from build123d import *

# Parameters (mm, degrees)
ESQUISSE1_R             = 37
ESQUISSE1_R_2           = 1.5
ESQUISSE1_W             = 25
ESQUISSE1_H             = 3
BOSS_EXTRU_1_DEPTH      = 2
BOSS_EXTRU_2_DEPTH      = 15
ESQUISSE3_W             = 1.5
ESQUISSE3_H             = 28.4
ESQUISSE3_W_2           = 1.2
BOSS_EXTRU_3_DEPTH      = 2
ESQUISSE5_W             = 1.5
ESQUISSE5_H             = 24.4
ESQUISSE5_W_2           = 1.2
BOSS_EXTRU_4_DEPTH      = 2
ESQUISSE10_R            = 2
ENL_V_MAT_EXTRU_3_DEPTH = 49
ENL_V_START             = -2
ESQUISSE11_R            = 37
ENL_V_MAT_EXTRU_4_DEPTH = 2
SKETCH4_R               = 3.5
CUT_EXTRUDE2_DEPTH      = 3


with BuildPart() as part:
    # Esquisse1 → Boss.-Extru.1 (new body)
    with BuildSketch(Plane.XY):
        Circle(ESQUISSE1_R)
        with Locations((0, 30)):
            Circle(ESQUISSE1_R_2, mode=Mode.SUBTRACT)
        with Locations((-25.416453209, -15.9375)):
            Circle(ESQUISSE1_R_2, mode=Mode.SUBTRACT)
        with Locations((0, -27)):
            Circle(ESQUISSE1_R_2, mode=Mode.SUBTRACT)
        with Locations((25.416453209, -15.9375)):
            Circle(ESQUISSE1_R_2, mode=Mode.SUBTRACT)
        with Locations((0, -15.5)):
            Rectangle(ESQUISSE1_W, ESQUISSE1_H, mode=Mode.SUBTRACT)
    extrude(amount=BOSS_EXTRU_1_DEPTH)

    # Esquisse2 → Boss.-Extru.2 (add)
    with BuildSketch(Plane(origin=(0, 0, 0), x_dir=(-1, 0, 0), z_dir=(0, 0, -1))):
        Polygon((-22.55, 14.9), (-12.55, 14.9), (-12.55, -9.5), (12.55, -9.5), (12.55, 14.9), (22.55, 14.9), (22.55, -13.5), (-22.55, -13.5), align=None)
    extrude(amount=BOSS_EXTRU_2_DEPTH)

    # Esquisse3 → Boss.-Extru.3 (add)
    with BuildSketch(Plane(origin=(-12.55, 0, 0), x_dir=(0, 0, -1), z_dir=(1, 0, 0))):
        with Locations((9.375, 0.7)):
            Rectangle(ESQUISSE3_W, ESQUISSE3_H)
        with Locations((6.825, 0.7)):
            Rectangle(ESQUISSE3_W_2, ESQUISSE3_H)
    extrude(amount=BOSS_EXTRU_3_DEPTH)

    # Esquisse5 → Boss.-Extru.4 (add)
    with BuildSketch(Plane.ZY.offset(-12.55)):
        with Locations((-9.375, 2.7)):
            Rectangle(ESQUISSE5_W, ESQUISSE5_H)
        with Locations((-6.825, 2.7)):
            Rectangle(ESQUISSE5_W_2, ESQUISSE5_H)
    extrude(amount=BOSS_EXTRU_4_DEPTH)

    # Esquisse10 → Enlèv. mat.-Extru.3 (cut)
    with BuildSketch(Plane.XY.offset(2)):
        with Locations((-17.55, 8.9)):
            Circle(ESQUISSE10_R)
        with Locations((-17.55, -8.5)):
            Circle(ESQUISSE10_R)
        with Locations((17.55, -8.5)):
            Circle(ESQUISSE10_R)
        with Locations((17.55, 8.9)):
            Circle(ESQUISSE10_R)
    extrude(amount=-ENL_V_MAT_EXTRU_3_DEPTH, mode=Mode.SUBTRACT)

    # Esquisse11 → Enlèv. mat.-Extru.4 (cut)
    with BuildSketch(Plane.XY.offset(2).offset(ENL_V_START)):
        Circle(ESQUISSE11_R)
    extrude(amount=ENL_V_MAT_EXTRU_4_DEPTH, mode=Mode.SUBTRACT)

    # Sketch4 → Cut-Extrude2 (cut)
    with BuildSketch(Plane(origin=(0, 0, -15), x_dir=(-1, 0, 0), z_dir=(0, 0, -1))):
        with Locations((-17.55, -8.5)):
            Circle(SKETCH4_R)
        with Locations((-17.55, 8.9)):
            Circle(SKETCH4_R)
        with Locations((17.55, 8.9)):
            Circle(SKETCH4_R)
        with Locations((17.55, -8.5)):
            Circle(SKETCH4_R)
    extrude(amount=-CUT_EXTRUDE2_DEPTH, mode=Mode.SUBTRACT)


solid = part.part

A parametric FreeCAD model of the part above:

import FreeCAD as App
import Part
import Sketcher
from FreeCAD import Vector
Q = App.Units.Quantity

doc = App.newDocument("Part")
params = doc.addObject("Spreadsheet::Sheet", "Params")
for row, (alias, value) in enumerate([
    ("sketch1_diameter", "74 mm"),
    ("sketch1_diameter2", "3 mm"),
    ("sketch1_width", "25 mm"),
    ("sketch1_height", "3 mm"),
    ("pad1_length", "2 mm"),
    ("sketch2_width", "10 mm"),
    ("sketch2_width2", "45.1 mm"),
    ("sketch2_height", "28.4 mm"),
    ("sketch2_height2", "24.4 mm"),
    ("pad2_length", "15 mm"),
    ("sketch3_width", "28.4 mm"),
    ("sketch3_height", "1.5 mm"),
    ("sketch3_height2", "1.2 mm"),
    ("pad3_length", "2 mm"),
    ("sketch4_width", "24.4 mm"),
    ("sketch4_height", "1.5 mm"),
    ("sketch4_height2", "1.2 mm"),
    ("pad4_length", "2 mm"),
    ("sketch5_diameter", "4 mm"),
    ("pocket1_length", "49 mm"),
    ("sketch6_diameter", "74 mm"),
    ("pocket2_length", "2 mm"),
    ("sketch7_diameter", "7 mm"),
    ("pocket3_length", "3 mm"),
], start=1):
    params.set(f"A{row}", alias)
    params.set(f"B{row}", "=" + value)
    params.setAlias(f"B{row}", alias)

body = doc.addObject("PartDesign::Body", "Body")

sketch1 = body.newObject("Sketcher::SketchObject", "Sketch")
sketch1.AttachmentSupport = (doc.getObject("XY_Plane"), [""])
sketch1.MapMode = "FlatFace"
sketch1.addGeometry(Part.Circle(Vector(0, 0, 0), Vector(0, 0, 1), 37), False)
sketch1.addGeometry(Part.Circle(Vector(-25.4, -15.9, 0), Vector(0, 0, 1), 1.5), False)
sketch1.addGeometry(Part.LineSegment(Vector(12.5, -17, 0), Vector(-12.5, -17, 0)), False)
sketch1.addGeometry(Part.LineSegment(Vector(-12.5, -17, 0), Vector(-12.5, -14, 0)), False)
sketch1.addGeometry(Part.LineSegment(Vector(-12.5, -14, 0), Vector(12.5, -14, 0)), False)
sketch1.addGeometry(Part.LineSegment(Vector(12.5, -14, 0), Vector(12.5, -17, 0)), False)
sketch1.addGeometry(Part.Circle(Vector(0, -27, 0), Vector(0, 0, 1), 1.5), False)
sketch1.addGeometry(Part.Circle(Vector(25.4, -15.9, 0), Vector(0, 0, 1), 1.5), False)
sketch1.addGeometry(Part.Circle(Vector(0, 30, 0), Vector(0, 0, 1), 1.5), False)
sketch1.addConstraint(Sketcher.Constraint("Coincident", 2, 2, 3, 1))
sketch1.addConstraint(Sketcher.Constraint("Coincident", 3, 2, 4, 1))
sketch1.addConstraint(Sketcher.Constraint("Coincident", 4, 2, 5, 1))
sketch1.addConstraint(Sketcher.Constraint("Coincident", 5, 2, 2, 1))
sketch1.addConstraint(Sketcher.Constraint("Horizontal", 2))
sketch1.addConstraint(Sketcher.Constraint("Vertical", 3))
sketch1.addConstraint(Sketcher.Constraint("Horizontal", 4))
sketch1.addConstraint(Sketcher.Constraint("Vertical", 5))
sketch1.addConstraint(Sketcher.Constraint("Coincident", 0, 3, -1, 1))
sketch1.addConstraint(Sketcher.Constraint("Equal", 1, 6))
sketch1.addConstraint(Sketcher.Constraint("Equal", 6, 7))
sketch1.addConstraint(Sketcher.Constraint("Equal", 7, 8))
sketch1.addConstraint(Sketcher.Constraint("Symmetric", 1, 3, 7, 3, -2))
sketch1.addConstraint(Sketcher.Constraint("PointOnObject", 6, 3, -2))
sketch1.addConstraint(Sketcher.Constraint("PointOnObject", 8, 3, -2))
sketch1.addConstraint(Sketcher.Constraint("Diameter", 0, Q("74 mm")))
sketch1.addConstraint(Sketcher.Constraint("Diameter", 1, Q("3 mm")))
sketch1.addConstraint(Sketcher.Constraint("DistanceX", 2, 2, 2, 1, Q("25 mm")))
sketch1.addConstraint(Sketcher.Constraint("DistanceY", 3, 1, 3, 2, Q("3 mm")))
sketch1.addConstraint(Sketcher.Constraint("DistanceY", 6, 3, -1, 1, Q("27 mm")))
sketch1.addConstraint(Sketcher.Constraint("DistanceY", -1, 1, 8, 3, Q("30 mm")))
sketch1.addConstraint(Sketcher.Constraint("DistanceY", 2, 2, -1, 1, Q("17 mm")))
sketch1.addConstraint(Sketcher.Constraint("DistanceX", 2, 2, -1, 1, Q("12.5 mm")))
sketch1.addConstraint(Sketcher.Constraint("DistanceY", 1, 3, -1, 1, Q("15.9375 mm")))
sketch1.addConstraint(Sketcher.Constraint("DistanceX", 1, 3, -1, 1, Q("25.416453 mm")))
sketch1.setExpression("Constraints[15]", "Params.sketch1_diameter")
sketch1.setExpression("Constraints[16]", "Params.sketch1_diameter2")
sketch1.setExpression("Constraints[17]", "Params.sketch1_width")
sketch1.setExpression("Constraints[18]", "Params.sketch1_height")
pad1 = body.newObject("PartDesign::Pad", "Pad")
pad1.Profile = sketch1
pad1.setExpression("Length", "Params.pad1_length")

sketch2 = body.newObject("Sketcher::SketchObject", "Sketch001")
sketch2.AttachmentSupport = (doc.getObject("XY_Plane"), [""])
sketch2.MapMode = "FlatFace"
sketch2.addGeometry(Part.LineSegment(Vector(13, 15, 0), Vector(23, 15, 0)), False)
sketch2.addGeometry(Part.LineSegment(Vector(23, 15, 0), Vector(23, -14, 0)), False)
sketch2.addGeometry(Part.LineSegment(Vector(23, -14, 0), Vector(-23, -14, 0)), False)
sketch2.addGeometry(Part.LineSegment(Vector(-23, -14, 0), Vector(-23, 15, 0)), False)
sketch2.addGeometry(Part.LineSegment(Vector(-23, 15, 0), Vector(-13, 15, 0)), False)
sketch2.addGeometry(Part.LineSegment(Vector(-13, 15, 0), Vector(-13, -10, 0)), False)
sketch2.addGeometry(Part.LineSegment(Vector(-13, -10, 0), Vector(13, -10, 0)), False)
sketch2.addGeometry(Part.LineSegment(Vector(13, -10, 0), Vector(13, 15, 0)), False)
sketch2.addConstraint(Sketcher.Constraint("Coincident", 0, 2, 1, 1))
sketch2.addConstraint(Sketcher.Constraint("Coincident", 1, 2, 2, 1))
sketch2.addConstraint(Sketcher.Constraint("Coincident", 2, 2, 3, 1))
sketch2.addConstraint(Sketcher.Constraint("Coincident", 3, 2, 4, 1))
sketch2.addConstraint(Sketcher.Constraint("Coincident", 4, 2, 5, 1))
sketch2.addConstraint(Sketcher.Constraint("Coincident", 5, 2, 6, 1))
sketch2.addConstraint(Sketcher.Constraint("Coincident", 6, 2, 7, 1))
sketch2.addConstraint(Sketcher.Constraint("Coincident", 7, 2, 0, 1))
sketch2.addConstraint(Sketcher.Constraint("Horizontal", 0))
sketch2.addConstraint(Sketcher.Constraint("Vertical", 1))
sketch2.addConstraint(Sketcher.Constraint("Horizontal", 2))
sketch2.addConstraint(Sketcher.Constraint("Vertical", 3))
sketch2.addConstraint(Sketcher.Constraint("Horizontal", 4))
sketch2.addConstraint(Sketcher.Constraint("Vertical", 5))
sketch2.addConstraint(Sketcher.Constraint("Horizontal", 6))
sketch2.addConstraint(Sketcher.Constraint("Vertical", 7))
sketch2.addConstraint(Sketcher.Constraint("Symmetric", 0, 2, 3, 2, -2))
sketch2.addConstraint(Sketcher.Constraint("Equal", 0, 4))
sketch2.addConstraint(Sketcher.Constraint("DistanceX", 0, 1, 0, 2, Q("10 mm")))
sketch2.addConstraint(Sketcher.Constraint("DistanceX", 2, 2, 2, 1, Q("45.1 mm")))
sketch2.addConstraint(Sketcher.Constraint("DistanceY", 1, 2, 1, 1, Q("28.4 mm")))
sketch2.addConstraint(Sketcher.Constraint("DistanceY", 5, 2, 5, 1, Q("24.4 mm")))
sketch2.addConstraint(Sketcher.Constraint("DistanceY", -1, 1, 0, 2, Q("14.9 mm")))
sketch2.setExpression("Constraints[18]", "Params.sketch2_width")
sketch2.setExpression("Constraints[19]", "Params.sketch2_width2")
sketch2.setExpression("Constraints[20]", "Params.sketch2_height")
sketch2.setExpression("Constraints[21]", "Params.sketch2_height2")
pad2 = body.newObject("PartDesign::Pad", "Pad001")
pad2.Profile = sketch2
pad2.setExpression("Length", "Params.pad2_length")
pad2.Reversed = True

sketch3 = body.newObject("Sketcher::SketchObject", "Sketch002")
sketch3.AttachmentSupport = (doc.getObject("YZ_Plane"), [""])
sketch3.MapMode = "FlatFace"
sketch3.AttachmentOffset = App.Placement(Vector(0, 0, -12.55), App.Rotation())
sketch3.addGeometry(Part.LineSegment(Vector(14.9, -8.6, 0), Vector(-13.5, -8.6, 0)), False)
sketch3.addGeometry(Part.LineSegment(Vector(-13.5, -8.6, 0), Vector(-13.5, -10.1, 0)), False)
sketch3.addGeometry(Part.LineSegment(Vector(-13.5, -10.1, 0), Vector(14.9, -10.1, 0)), False)
sketch3.addGeometry(Part.LineSegment(Vector(14.9, -10.1, 0), Vector(14.9, -8.6, 0)), False)
sketch3.addGeometry(Part.LineSegment(Vector(14.9, -6.2, 0), Vector(-13.5, -6.2, 0)), False)
sketch3.addGeometry(Part.LineSegment(Vector(-13.5, -6.2, 0), Vector(-13.5, -7.4, 0)), False)
sketch3.addGeometry(Part.LineSegment(Vector(-13.5, -7.4, 0), Vector(14.9, -7.4, 0)), False)
sketch3.addGeometry(Part.LineSegment(Vector(14.9, -7.4, 0), Vector(14.9, -6.2, 0)), False)
sketch3.addConstraint(Sketcher.Constraint("Coincident", 0, 2, 1, 1))
sketch3.addConstraint(Sketcher.Constraint("Coincident", 1, 2, 2, 1))
sketch3.addConstraint(Sketcher.Constraint("Coincident", 2, 2, 3, 1))
sketch3.addConstraint(Sketcher.Constraint("Coincident", 3, 2, 0, 1))
sketch3.addConstraint(Sketcher.Constraint("Coincident", 4, 2, 5, 1))
sketch3.addConstraint(Sketcher.Constraint("Coincident", 5, 2, 6, 1))
sketch3.addConstraint(Sketcher.Constraint("Coincident", 6, 2, 7, 1))
sketch3.addConstraint(Sketcher.Constraint("Coincident", 7, 2, 4, 1))
sketch3.addConstraint(Sketcher.Constraint("Horizontal", 0))
sketch3.addConstraint(Sketcher.Constraint("Vertical", 1))
sketch3.addConstraint(Sketcher.Constraint("Horizontal", 2))
sketch3.addConstraint(Sketcher.Constraint("Vertical", 3))
sketch3.addConstraint(Sketcher.Constraint("Horizontal", 4))
sketch3.addConstraint(Sketcher.Constraint("Vertical", 5))
sketch3.addConstraint(Sketcher.Constraint("Horizontal", 6))
sketch3.addConstraint(Sketcher.Constraint("Vertical", 7))
sketch3.addConstraint(Sketcher.Constraint("Vertical", 1, 2, 4, 2))
sketch3.addConstraint(Sketcher.Constraint("Vertical", 3, 2, 6, 2))
sketch3.addConstraint(Sketcher.Constraint("DistanceX", 0, 2, 0, 1, Q("28.4 mm")))
sketch3.addConstraint(Sketcher.Constraint("DistanceY", 1, 2, 1, 1, Q("1.5 mm")))
sketch3.addConstraint(Sketcher.Constraint("DistanceY", 5, 2, 5, 1, Q("1.2 mm")))
sketch3.addConstraint(Sketcher.Constraint("DistanceX", 0, 2, -1, 1, Q("13.5 mm")))
sketch3.addConstraint(Sketcher.Constraint("DistanceY", 0, 2, 4, 2, Q("2.4 mm")))
sketch3.addConstraint(Sketcher.Constraint("DistanceY", 0, 2, -1, 1, Q("8.625 mm")))
sketch3.setExpression("Constraints[18]", "Params.sketch3_width")
sketch3.setExpression("Constraints[19]", "Params.sketch3_height")
sketch3.setExpression("Constraints[20]", "Params.sketch3_height2")
pad3 = body.newObject("PartDesign::Pad", "Pad002")
pad3.Profile = sketch3
pad3.setExpression("Length", "Params.pad3_length")

sketch4 = body.newObject("Sketcher::SketchObject", "Sketch003")
sketch4.AttachmentSupport = (doc.getObject("YZ_Plane"), [""])
sketch4.MapMode = "FlatFace"
sketch4.AttachmentOffset = App.Placement(Vector(0, 0, 12.55), App.Rotation())
sketch4.addGeometry(Part.LineSegment(Vector(14.9, -10.1, 0), Vector(-9.5, -10.1, 0)), False)
sketch4.addGeometry(Part.LineSegment(Vector(-9.5, -10.1, 0), Vector(-9.5, -8.6, 0)), False)
sketch4.addGeometry(Part.LineSegment(Vector(-9.5, -8.6, 0), Vector(14.9, -8.6, 0)), False)
sketch4.addGeometry(Part.LineSegment(Vector(14.9, -8.6, 0), Vector(14.9, -10.1, 0)), False)
sketch4.addGeometry(Part.LineSegment(Vector(14.9, -7.4, 0), Vector(-9.5, -7.4, 0)), False)
sketch4.addGeometry(Part.LineSegment(Vector(-9.5, -7.4, 0), Vector(-9.5, -6.2, 0)), False)
sketch4.addGeometry(Part.LineSegment(Vector(-9.5, -6.2, 0), Vector(14.9, -6.2, 0)), False)
sketch4.addGeometry(Part.LineSegment(Vector(14.9, -6.2, 0), Vector(14.9, -7.4, 0)), False)
sketch4.addConstraint(Sketcher.Constraint("Coincident", 0, 2, 1, 1))
sketch4.addConstraint(Sketcher.Constraint("Coincident", 1, 2, 2, 1))
sketch4.addConstraint(Sketcher.Constraint("Coincident", 2, 2, 3, 1))
sketch4.addConstraint(Sketcher.Constraint("Coincident", 3, 2, 0, 1))
sketch4.addConstraint(Sketcher.Constraint("Coincident", 4, 2, 5, 1))
sketch4.addConstraint(Sketcher.Constraint("Coincident", 5, 2, 6, 1))
sketch4.addConstraint(Sketcher.Constraint("Coincident", 6, 2, 7, 1))
sketch4.addConstraint(Sketcher.Constraint("Coincident", 7, 2, 4, 1))
sketch4.addConstraint(Sketcher.Constraint("Horizontal", 0))
sketch4.addConstraint(Sketcher.Constraint("Vertical", 1))
sketch4.addConstraint(Sketcher.Constraint("Horizontal", 2))
sketch4.addConstraint(Sketcher.Constraint("Vertical", 3))
sketch4.addConstraint(Sketcher.Constraint("Horizontal", 4))
sketch4.addConstraint(Sketcher.Constraint("Vertical", 5))
sketch4.addConstraint(Sketcher.Constraint("Horizontal", 6))
sketch4.addConstraint(Sketcher.Constraint("Vertical", 7))
sketch4.addConstraint(Sketcher.Constraint("Vertical", 1, 2, 4, 2))
sketch4.addConstraint(Sketcher.Constraint("Vertical", 3, 2, 6, 2))
sketch4.addConstraint(Sketcher.Constraint("DistanceX", 0, 2, 0, 1, Q("24.4 mm")))
sketch4.addConstraint(Sketcher.Constraint("DistanceY", 1, 1, 1, 2, Q("1.5 mm")))
sketch4.addConstraint(Sketcher.Constraint("DistanceY", 5, 1, 5, 2, Q("1.2 mm")))
sketch4.addConstraint(Sketcher.Constraint("DistanceX", 0, 2, -1, 1, Q("9.5 mm")))
sketch4.addConstraint(Sketcher.Constraint("DistanceY", 1, 2, 4, 2, Q("1.2 mm")))
sketch4.addConstraint(Sketcher.Constraint("DistanceY", 0, 2, -1, 1, Q("10.125 mm")))
sketch4.setExpression("Constraints[18]", "Params.sketch4_width")
sketch4.setExpression("Constraints[19]", "Params.sketch4_height")
sketch4.setExpression("Constraints[20]", "Params.sketch4_height2")
pad4 = body.newObject("PartDesign::Pad", "Pad003")
pad4.Profile = sketch4
pad4.setExpression("Length", "Params.pad4_length")
pad4.Reversed = True

sketch5 = body.newObject("Sketcher::SketchObject", "Sketch004")
sketch5.AttachmentSupport = (doc.getObject("XY_Plane"), [""])
sketch5.MapMode = "FlatFace"
sketch5.AttachmentOffset = App.Placement(Vector(0, 0, 2), App.Rotation())
sketch5.addGeometry(Part.Circle(Vector(-17.6, 8.9, 0), Vector(0, 0, 1), 2), False)
sketch5.addGeometry(Part.Circle(Vector(-17.6, -8.5, 0), Vector(0, 0, 1), 2), False)
sketch5.addGeometry(Part.Circle(Vector(17.6, -8.5, 0), Vector(0, 0, 1), 2), False)
sketch5.addGeometry(Part.Circle(Vector(17.6, 8.9, 0), Vector(0, 0, 1), 2), False)
sketch5.addConstraint(Sketcher.Constraint("Equal", 0, 1))
sketch5.addConstraint(Sketcher.Constraint("Equal", 1, 2))
sketch5.addConstraint(Sketcher.Constraint("Equal", 2, 3))
sketch5.addConstraint(Sketcher.Constraint("Symmetric", 1, 3, 2, 3, -2))
sketch5.addConstraint(Sketcher.Constraint("Symmetric", 0, 3, 3, 3, -2))
sketch5.addConstraint(Sketcher.Constraint("Vertical", 0, 3, 1, 3))
sketch5.addConstraint(Sketcher.Constraint("Diameter", 0, Q("4 mm")))
sketch5.addConstraint(Sketcher.Constraint("DistanceY", -1, 1, 0, 3, Q("8.9 mm")))
sketch5.addConstraint(Sketcher.Constraint("DistanceY", 1, 3, -1, 1, Q("8.5 mm")))
sketch5.addConstraint(Sketcher.Constraint("DistanceX", 1, 3, 2, 3, Q("35.1 mm")))
sketch5.setExpression("Constraints[6]", "Params.sketch5_diameter")
pocket1 = body.newObject("PartDesign::Pocket", "Pocket")
pocket1.Profile = sketch5
pocket1.setExpression("Length", "Params.pocket1_length")

sketch6 = body.newObject("Sketcher::SketchObject", "Sketch005")
sketch6.AttachmentSupport = (doc.getObject("XY_Plane"), [""])
sketch6.MapMode = "FlatFace"
sketch6.addGeometry(Part.Circle(Vector(0, 0, 0), Vector(0, 0, 1), 37), False)
sketch6.addConstraint(Sketcher.Constraint("Coincident", 0, 3, -1, 1))
sketch6.addConstraint(Sketcher.Constraint("Diameter", 0, Q("74 mm")))
sketch6.setExpression("Constraints[1]", "Params.sketch6_diameter")
pocket2 = body.newObject("PartDesign::Pocket", "Pocket001")
pocket2.Profile = sketch6
pocket2.setExpression("Length", "Params.pocket2_length")
pocket2.Reversed = True

sketch7 = body.newObject("Sketcher::SketchObject", "Sketch006")
sketch7.AttachmentSupport = (doc.getObject("XY_Plane"), [""])
sketch7.MapMode = "FlatFace"
sketch7.AttachmentOffset = App.Placement(Vector(0, 0, -15), App.Rotation())
sketch7.addGeometry(Part.Circle(Vector(17.6, -8.5, 0), Vector(0, 0, 1), 3.5), False)
sketch7.addGeometry(Part.Circle(Vector(17.6, 8.9, 0), Vector(0, 0, 1), 3.5), False)
sketch7.addGeometry(Part.Circle(Vector(-17.6, 8.9, 0), Vector(0, 0, 1), 3.5), False)
sketch7.addGeometry(Part.Circle(Vector(-17.6, -8.5, 0), Vector(0, 0, 1), 3.5), False)
sketch7.addConstraint(Sketcher.Constraint("Equal", 0, 1))
sketch7.addConstraint(Sketcher.Constraint("Equal", 1, 2))
sketch7.addConstraint(Sketcher.Constraint("Equal", 2, 3))
sketch7.addConstraint(Sketcher.Constraint("Symmetric", 1, 3, 2, 3, -2))
sketch7.addConstraint(Sketcher.Constraint("Symmetric", 0, 3, 3, 3, -2))
sketch7.addConstraint(Sketcher.Constraint("Vertical", 0, 3, 1, 3))
sketch7.addConstraint(Sketcher.Constraint("Diameter", 0, Q("7 mm")))
sketch7.addConstraint(Sketcher.Constraint("DistanceY", 0, 3, -1, 1, Q("8.5 mm")))
sketch7.addConstraint(Sketcher.Constraint("DistanceY", -1, 1, 1, 3, Q("8.9 mm")))
sketch7.addConstraint(Sketcher.Constraint("DistanceX", 2, 3, 1, 3, Q("35.1 mm")))
sketch7.setExpression("Constraints[6]", "Params.sketch7_diameter")
pocket3 = body.newObject("PartDesign::Pocket", "Pocket002")
pocket3.Profile = sketch7
pocket3.setExpression("Length", "Params.pocket3_length")
pocket3.Reversed = True

doc.recompute()
